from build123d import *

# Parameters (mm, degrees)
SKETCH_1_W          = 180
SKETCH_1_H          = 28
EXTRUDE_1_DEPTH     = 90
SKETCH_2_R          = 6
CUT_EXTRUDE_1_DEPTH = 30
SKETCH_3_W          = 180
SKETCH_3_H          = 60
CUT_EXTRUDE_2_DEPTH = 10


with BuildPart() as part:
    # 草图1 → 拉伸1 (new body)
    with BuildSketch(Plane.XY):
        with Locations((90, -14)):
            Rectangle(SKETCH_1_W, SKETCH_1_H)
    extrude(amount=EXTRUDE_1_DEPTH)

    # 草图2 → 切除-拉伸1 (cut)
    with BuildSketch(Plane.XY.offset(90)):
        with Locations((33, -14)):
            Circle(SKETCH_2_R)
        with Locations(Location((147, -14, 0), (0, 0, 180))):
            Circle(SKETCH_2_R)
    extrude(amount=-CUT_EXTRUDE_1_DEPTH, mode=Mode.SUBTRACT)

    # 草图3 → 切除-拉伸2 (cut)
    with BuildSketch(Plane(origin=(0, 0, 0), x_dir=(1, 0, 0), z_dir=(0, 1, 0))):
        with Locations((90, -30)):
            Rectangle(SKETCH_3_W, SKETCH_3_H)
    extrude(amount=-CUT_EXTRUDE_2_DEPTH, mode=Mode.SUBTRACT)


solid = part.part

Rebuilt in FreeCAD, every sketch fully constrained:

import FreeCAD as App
import Part
import Sketcher
Q = App.Units.Quantity

doc = App.newDocument("Part")
body = doc.addObject("PartDesign::Body", "Body")

sketch1 = body.newObject("Sketcher::SketchObject", "Sketch")
sketch1.AttachmentSupport = (doc.getObject("XY_Plane"), [""])
sketch1.MapMode = "FlatFace"
sketch1.addGeometry(Part.LineSegment(App.Vector(0, 0, 0), App.Vector(0, -28, 0)), False)
sketch1.addGeometry(Part.LineSegment(App.Vector(0, -28, 0), App.Vector(180, -28, 0)), False)
sketch1.addGeometry(Part.LineSegment(App.Vector(180, -28, 0), App.Vector(180, 0, 0)), False)
sketch1.addGeometry(Part.LineSegment(App.Vector(180, 0, 0), App.Vector(0, 0, 0)), False)
sketch1.addConstraint(Sketcher.Constraint("Coincident", 0, 2, 1, 1))
sketch1.addConstraint(Sketcher.Constraint("Coincident", 1, 2, 2, 1))
sketch1.addConstraint(Sketcher.Constraint("Coincident", 2, 2, 3, 1))
sketch1.addConstraint(Sketcher.Constraint("Coincident", 3, 2, 0, 1))
sketch1.addConstraint(Sketcher.Constraint("Vertical", 0))
sketch1.addConstraint(Sketcher.Constraint("Horizontal", 1))
sketch1.addConstraint(Sketcher.Constraint("Vertical", 2))
sketch1.addConstraint(Sketcher.Constraint("Horizontal", 3))
sketch1.addConstraint(Sketcher.Constraint("Coincident", 3, 2, -1, 1))
sketch1.addConstraint(Sketcher.Constraint("DistanceX", 1, 1, 1, 2, Q("180 mm")))
sketch1.addConstraint(Sketcher.Constraint("DistanceY", 0, 2, 0, 1, Q("28 mm")))
pad1 = body.newObject("PartDesign::Pad", "Pad")
pad1.Profile = sketch1
pad1.Length = 90

sketch2 = body.newObject("Sketcher::SketchObject", "Sketch001")
sketch2.AttachmentSupport = (doc.getObject("XY_Plane"), [""])
sketch2.MapMode = "FlatFace"
sketch2.AttachmentOffset = App.Placement(App.Vector(0, 0, 90), App.Rotation())
sketch2.addGeometry(Part.Circle(App.Vector(33, -14, 0), App.Vector(0, 0, 1), 6), False)
sketch2.addGeometry(Part.Circle(App.Vector(147, -14, 0), App.Vector(0, 0, 1), 6), False)
sketch2.addConstraint(Sketcher.Constraint("Equal", 0, 1))
sketch2.addConstraint(Sketcher.Constraint("Horizontal", 0, 3, 1, 3))
sketch2.addConstraint(Sketcher.Constraint("Diameter", 0, Q("12 mm")))
sketch2.addConstraint(Sketcher.Constraint("DistanceX", -1, 1, 0, 3, Q("33 mm")))
sketch2.addConstraint(Sketcher.Constraint("DistanceY", 0, 3, -1, 1, Q("14 mm")))
sketch2.addConstraint(Sketcher.Constraint("DistanceX", -1, 1, 1, 3, Q("147 mm")))
pocket1 = body.newObject("PartDesign::Pocket", "Pocket")
pocket1.Profile = sketch2
pocket1.Length = 30

sketch3 = body.newObject("Sketcher::SketchObject", "Sketch002")
sketch3.AttachmentSupport = (doc.getObject("XZ_Plane"), [""])
sketch3.MapMode = "FlatFace"
sketch3.addGeometry(Part.LineSegment(App.Vector(0, 0, 0), App.Vector(0, 60, 0)), False)
sketch3.addGeometry(Part.LineSegment(App.Vector(0, 60, 0), App.Vector(180, 60, 0)), False)
sketch3.addGeometry(Part.LineSegment(App.Vector(180, 60, 0), App.Vector(180, 0, 0)), False)
sketch3.addGeometry(Part.LineSegment(App.Vector(180, 0, 0), App.Vector(0, 0, 0)), False)
sketch3.addConstraint(Sketcher.Constraint("Coincident", 0, 2, 1, 1))
sketch3.addConstraint(Sketcher.Constraint("Coincident", 1, 2, 2, 1))
sketch3.addConstraint(Sketcher.Constraint("Coincident", 2, 2, 3, 1))
sketch3.addConstraint(Sketcher.Constraint("Coincident", 3, 2, 0, 1))
sketch3.addConstraint(Sketcher.Constraint("Vertical", 0))
sketch3.addConstraint(Sketcher.Constraint("Horizontal", 1))
sketch3.addConstraint(Sketcher.Constraint("Vertical", 2))
sketch3.addConstraint(Sketcher.Constraint("Horizontal", 3))
sketch3.addConstraint(Sketcher.Constraint("Coincident", 3, 2, -1, 1))
sketch3.addConstraint(Sketcher.Constraint("DistanceX", 1, 1, 1, 2, Q("180 mm")))
sketch3.addConstraint(Sketcher.Constraint("DistanceY", 0, 1, 0, 2, Q("60 mm")))
pocket2 = body.newObject("PartDesign::Pocket", "Pocket001")
pocket2.Profile = sketch3
pocket2.Length = 10
pocket2.Reversed = True

doc.recompute()
